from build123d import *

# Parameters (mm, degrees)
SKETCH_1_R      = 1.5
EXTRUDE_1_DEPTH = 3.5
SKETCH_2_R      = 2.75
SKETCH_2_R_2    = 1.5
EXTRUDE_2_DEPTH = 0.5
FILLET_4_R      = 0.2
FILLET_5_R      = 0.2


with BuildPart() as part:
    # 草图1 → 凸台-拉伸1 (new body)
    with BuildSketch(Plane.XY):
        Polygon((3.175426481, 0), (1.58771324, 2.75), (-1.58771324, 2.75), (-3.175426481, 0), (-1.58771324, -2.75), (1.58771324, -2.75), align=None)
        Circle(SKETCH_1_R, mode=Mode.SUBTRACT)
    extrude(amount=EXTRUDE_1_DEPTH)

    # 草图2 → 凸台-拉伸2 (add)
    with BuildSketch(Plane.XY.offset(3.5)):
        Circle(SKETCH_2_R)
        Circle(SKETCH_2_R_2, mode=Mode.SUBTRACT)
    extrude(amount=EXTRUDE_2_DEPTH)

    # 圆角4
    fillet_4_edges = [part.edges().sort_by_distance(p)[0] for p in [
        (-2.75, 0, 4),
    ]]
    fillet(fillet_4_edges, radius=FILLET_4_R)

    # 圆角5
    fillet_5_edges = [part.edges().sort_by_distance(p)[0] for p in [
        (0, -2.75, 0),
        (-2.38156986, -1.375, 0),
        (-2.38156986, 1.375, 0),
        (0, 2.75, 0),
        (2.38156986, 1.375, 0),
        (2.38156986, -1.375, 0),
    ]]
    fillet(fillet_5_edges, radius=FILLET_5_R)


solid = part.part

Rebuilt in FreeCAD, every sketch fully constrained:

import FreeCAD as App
import Part
import Sketcher
from FreeCAD import Vector
Q = App.Units.Quantity


def edges_at(feature, points):
    """Names of the edges that pass closest to the given points."""
    edges = feature.Shape.Edges
    near = lambda p: min(range(len(edges)), key=lambda i: edges[i].distToShape(Part.Vertex(*p))[0])
    return sorted({f"Edge{near(p) + 1}" for p in points})

doc = App.newDocument("Part")
body = doc.addObject("PartDesign::Body", "Body")

# Sketch on XY plane
sketch1 = body.newObject("Sketcher::SketchObject", "Sketch")
sketch1.AttachmentSupport = (doc.getObject("XY_Plane"), [""])
sketch1.MapMode = "FlatFace"
sketch1.addGeometry([
    Part.LineSegment(Vector(3.2, 0, 0), Vector(1.6, 2.8, 0)),  # 0
    Part.LineSegment(Vector(1.6, 2.8, 0), Vector(-1.6, 2.8, 0)),  # 1
    Part.LineSegment(Vector(-1.6, 2.8, 0), Vector(-3.2, 0, 0)),  # 2
    Part.LineSegment(Vector(-3.2, 0, 0), Vector(-1.6, -2.8, 0)),  # 3
    Part.LineSegment(Vector(-1.6, -2.8, 0), Vector(1.6, -2.8, 0)),  # 4
    Part.LineSegment(Vector(1.6, -2.8, 0), Vector(3.2, 0, 0)),  # 5
    Part.Circle(Vector(0, 0, 0), Vector(0, 0, 1), 1.5),  # 6
], False)
sketch1.addConstraint([
    Sketcher.Constraint("Coincident", 0, 2, 1, 1),
    Sketcher.Constraint("Coincident", 1, 2, 2, 1),
    Sketcher.Constraint("Coincident", 2, 2, 3, 1),
    Sketcher.Constraint("Coincident", 3, 2, 4, 1),
    Sketcher.Constraint("Coincident", 4, 2, 5, 1),
    Sketcher.Constraint("Coincident", 5, 2, 0, 1),
    Sketcher.Constraint("Horizontal", 1),
    Sketcher.Constraint("Horizontal", 4),
    Sketcher.Constraint("Coincident", 6, 3, -1, 1),
    Sketcher.Constraint("Symmetric", 0, 2, 3, 2, -1, 1),
    Sketcher.Constraint("Symmetric", 2, 2, 5, 2, -1, 1),
    Sketcher.Constraint("PointOnObject", 2, 2, -1),
    Sketcher.Constraint("Parallel", 2, 5),
    Sketcher.Constraint("Vertical", 1, 2, 3, 2),
    Sketcher.Constraint("Diameter", 6, Q("3 mm")),
    Sketcher.Constraint("Angle", 0, Q("120 deg")),
    Sketcher.Constraint("DistanceY", 3, 2, 1, 2, Q("5.5 mm")),
    Sketcher.Constraint("DistanceX", 1, 2, 1, 1, Q("3.175426 mm")),
])
pad1 = body.newObject("PartDesign::Pad", "Pad")
pad1.Profile = sketch1
pad1.Length = 3.5

# Sketch on XY plane
sketch2 = body.newObject("Sketcher::SketchObject", "Sketch001")
sketch2.AttachmentSupport = (doc.getObject("XY_Plane"), [""])
sketch2.MapMode = "FlatFace"
sketch2.AttachmentOffset = App.Placement(Vector(0, 0, 3.5), App.Rotation())
sketch2.addGeometry([
    Part.Circle(Vector(0, 0, 0), Vector(0, 0, 1), 2.8),
    Part.Circle(Vector(0, 0, 0), Vector(0, 0, 1), 1.5),
], False)
sketch2.addConstraint([
    Sketcher.Constraint("Coincident", 0, 3, -1, 1),
    Sketcher.Constraint("Coincident", 1, 3, -1, 1),
    Sketcher.Constraint("Diameter", 1, Q("3 mm")),
    Sketcher.Constraint("Diameter", 0, Q("5.5 mm")),
])
pad2 = body.newObject("PartDesign::Pad", "Pad001")
pad2.Profile = sketch2
pad2.Length = 0.5
doc.recompute()

fillet = body.newObject("PartDesign::Fillet", "Fillet")
fillet.Base = (pad2, edges_at(pad2, [(-2.75, 0, 4)]))
fillet.Radius = 0.2
doc.recompute()

fillet2 = body.newObject("PartDesign::Fillet", "Fillet001")
fillet2.Base = (fillet, edges_at(fillet, [
    (0, -2.75, 0),
    (-2.382, -1.375, 0),
    (-2.382, 1.375, 0),
    (0, 2.75, 0),
    (2.382, 1.375, 0),
    (2.382, -1.375, 0),
]))
fillet2.Radius = 0.2

doc.recompute()
